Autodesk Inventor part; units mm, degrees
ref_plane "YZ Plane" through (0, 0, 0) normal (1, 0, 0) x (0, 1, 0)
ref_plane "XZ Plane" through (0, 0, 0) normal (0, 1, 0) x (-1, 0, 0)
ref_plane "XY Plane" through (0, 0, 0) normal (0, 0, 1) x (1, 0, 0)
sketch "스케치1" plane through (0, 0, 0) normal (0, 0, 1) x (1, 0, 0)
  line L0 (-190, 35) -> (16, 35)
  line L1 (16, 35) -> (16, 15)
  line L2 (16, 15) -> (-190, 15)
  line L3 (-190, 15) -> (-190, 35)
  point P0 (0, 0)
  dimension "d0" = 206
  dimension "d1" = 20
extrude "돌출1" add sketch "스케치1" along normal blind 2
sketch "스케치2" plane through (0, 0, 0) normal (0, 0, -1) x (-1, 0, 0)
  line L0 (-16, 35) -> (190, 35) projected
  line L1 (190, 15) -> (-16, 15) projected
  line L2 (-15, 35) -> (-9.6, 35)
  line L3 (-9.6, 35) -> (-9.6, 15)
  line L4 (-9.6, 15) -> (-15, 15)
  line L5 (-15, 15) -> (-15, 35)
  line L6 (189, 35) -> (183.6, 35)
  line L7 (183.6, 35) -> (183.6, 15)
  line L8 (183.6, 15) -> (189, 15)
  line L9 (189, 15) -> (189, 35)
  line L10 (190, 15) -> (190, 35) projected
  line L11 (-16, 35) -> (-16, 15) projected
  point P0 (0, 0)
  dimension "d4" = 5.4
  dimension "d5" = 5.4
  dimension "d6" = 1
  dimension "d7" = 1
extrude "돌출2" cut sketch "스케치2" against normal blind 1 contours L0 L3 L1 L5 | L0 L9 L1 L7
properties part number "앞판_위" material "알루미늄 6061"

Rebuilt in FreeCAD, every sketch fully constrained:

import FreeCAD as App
import Part
import Sketcher


def add_polygon(sketch, points):
    """Adds a closed chain of lines whose ends are joined by coincident constraints."""
    first, n = sketch.GeometryCount, len(points)
    for a, b in zip(points, points[1:] + points[:1]):
        sketch.addGeometry(Part.LineSegment(App.Vector(*a, 0), App.Vector(*b, 0)), False)
    for i in range(n):
        sketch.addConstraint(Sketcher.Constraint("Coincident", first + i, 2, first + (i + 1) % n, 1))

doc = App.newDocument("Part")
body = doc.addObject("PartDesign::Body", "Body")

# Sketch on XY plane
sketch1 = body.newObject("Sketcher::SketchObject", "Sketch")
sketch1.AttachmentSupport = (doc.getObject("XY_Plane"), [""])
sketch1.MapMode = "FlatFace"
add_polygon(sketch1, [(16, 35), (-190, 35), (-190, 15), (16, 15)])  # lines 0-3
sketch1.addConstraint([
    Sketcher.Constraint("Horizontal", 0),
    Sketcher.Constraint("Vertical", 1),
    Sketcher.Constraint("Horizontal", 2),
    Sketcher.Constraint("Vertical", 3),
    Sketcher.Constraint("DistanceX", 0, 2, 0, 1, 206.0),
    Sketcher.Constraint("DistanceY", 1, 2, 1, 1, 20.0),
    Sketcher.Constraint("DistanceX", 0, 2, -1, 1, 190.0),
    Sketcher.Constraint("DistanceY", -1, 1, 0, 2, 35.0),
])
pad1 = body.newObject("PartDesign::Pad", "Pad")
pad1.Profile = sketch1
pad1.Length = 2

# Sketch on XY plane
sketch2 = body.newObject("Sketcher::SketchObject", "Sketch001")
sketch2.AttachmentSupport = (doc.getObject("XY_Plane"), [""])
sketch2.MapMode = "FlatFace"
add_polygon(sketch2, [(9.6, 35), (15, 35), (15, 15), (9.6, 15)])  # lines 0-3
add_polygon(sketch2, [(-189, 35), (-183.6, 35), (-183.6, 15), (-189, 15)])  # lines 4-7
sketch2.addConstraint([
    Sketcher.Constraint("Horizontal", 0),
    Sketcher.Constraint("Vertical", 1),
    Sketcher.Constraint("Horizontal", 2),
    Sketcher.Constraint("Vertical", 3),
    Sketcher.Constraint("Horizontal", 4),
    Sketcher.Constraint("Vertical", 5),
    Sketcher.Constraint("Horizontal", 6),
    Sketcher.Constraint("Vertical", 7),
    Sketcher.Constraint("Horizontal", 3, 2, 4, 2),
    Sketcher.Constraint("Horizontal", 2, 2, 5, 2),
    Sketcher.Constraint("Equal", 2, 4),
    Sketcher.Constraint("DistanceX", 0, 1, 0, 2, 5.4),
    Sketcher.Constraint("DistanceY", 1, 2, 1, 1, 20.0),
    Sketcher.Constraint("DistanceX", -1, 1, 0, 2, 15.0),
    Sketcher.Constraint("DistanceY", -1, 1, 0, 2, 35.0),
    Sketcher.Constraint("DistanceX", 6, 2, -1, 1, 189.0),
])
pocket1 = body.newObject("PartDesign::Pocket", "Pocket")
pocket1.Profile = sketch2
pocket1.Length = 1
pocket1.Reversed = True

doc.recompute()
